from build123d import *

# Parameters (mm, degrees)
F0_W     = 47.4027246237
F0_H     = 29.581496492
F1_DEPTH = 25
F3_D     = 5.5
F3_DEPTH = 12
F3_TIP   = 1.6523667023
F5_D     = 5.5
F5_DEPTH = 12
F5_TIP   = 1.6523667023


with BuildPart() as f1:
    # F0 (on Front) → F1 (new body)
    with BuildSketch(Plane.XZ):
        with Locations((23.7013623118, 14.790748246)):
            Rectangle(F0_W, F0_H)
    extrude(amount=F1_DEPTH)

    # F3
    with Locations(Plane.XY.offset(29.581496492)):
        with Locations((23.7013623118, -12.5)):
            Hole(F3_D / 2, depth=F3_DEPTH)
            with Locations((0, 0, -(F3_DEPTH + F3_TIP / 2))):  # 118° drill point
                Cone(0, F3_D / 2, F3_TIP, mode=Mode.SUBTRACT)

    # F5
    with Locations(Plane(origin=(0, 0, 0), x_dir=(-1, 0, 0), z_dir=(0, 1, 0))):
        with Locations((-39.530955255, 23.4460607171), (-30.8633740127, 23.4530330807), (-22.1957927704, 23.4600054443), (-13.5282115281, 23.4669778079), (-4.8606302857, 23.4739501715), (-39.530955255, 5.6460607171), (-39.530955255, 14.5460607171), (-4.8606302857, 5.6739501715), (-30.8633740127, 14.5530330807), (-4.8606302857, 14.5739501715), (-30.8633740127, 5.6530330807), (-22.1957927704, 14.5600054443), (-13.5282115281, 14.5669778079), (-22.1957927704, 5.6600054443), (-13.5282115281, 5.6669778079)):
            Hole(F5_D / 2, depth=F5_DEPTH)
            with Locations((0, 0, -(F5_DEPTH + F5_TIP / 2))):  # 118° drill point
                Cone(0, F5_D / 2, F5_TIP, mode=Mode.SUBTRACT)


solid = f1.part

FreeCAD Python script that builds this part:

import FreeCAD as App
import Part
import Sketcher


def add_polygon(sketch, points):
    """Adds a closed chain of lines whose ends are joined by coincident constraints."""
    first, n = sketch.GeometryCount, len(points)
    for a, b in zip(points, points[1:] + points[:1]):
        sketch.addGeometry(Part.LineSegment(App.Vector(*a, 0), App.Vector(*b, 0)), False)
    for i in range(n):
        sketch.addConstraint(Sketcher.Constraint("Coincident", first + i, 2, first + (i + 1) % n, 1))

doc = App.newDocument("Part")
body = doc.addObject("PartDesign::Body", "Body")

# Sketch on XZ plane
sketch1 = body.newObject("Sketcher::SketchObject", "Sketch")
sketch1.AttachmentSupport = (doc.getObject("XZ_Plane"), [""])
sketch1.MapMode = "FlatFace"
add_polygon(sketch1, [(0, 30), (0, 0), (47, 0), (47, 30)])  # lines 0-3
sketch1.addConstraint(Sketcher.Constraint("Vertical", 0))
sketch1.addConstraint(Sketcher.Constraint("Horizontal", 1))
sketch1.addConstraint(Sketcher.Constraint("Vertical", 2))
sketch1.addConstraint(Sketcher.Constraint("Horizontal", 3))
sketch1.addConstraint(Sketcher.Constraint("Coincident", 0, 2, -1, 1))
sketch1.addConstraint(Sketcher.Constraint("DistanceX", 1, 1, 1, 2, 47.402725))
sketch1.addConstraint(Sketcher.Constraint("DistanceY", 0, 2, 0, 1, 29.581496))
pad1 = body.newObject("PartDesign::Pad", "Pad")
pad1.Profile = sketch1
pad1.Length = 25

# Sketch on XY plane
sketch2 = body.newObject("Sketcher::SketchObject", "Sketch001")
sketch2.AttachmentSupport = (doc.getObject("XY_Plane"), [""])
sketch2.MapMode = "FlatFace"
sketch2.AttachmentOffset = App.Placement(App.Vector(0, 0, 29.581496), App.Rotation())
sketch2.addGeometry(Part.Circle(App.Vector(23.7, -12.5, 0), App.Vector(0, 0, 1), 2.8), False)
sketch2.addConstraint(Sketcher.Constraint("Diameter", 0, 5.5))
sketch2.addConstraint(Sketcher.Constraint("DistanceY", 0, 3, -1, 1, 12.5))
sketch2.addConstraint(Sketcher.Constraint("DistanceX", -1, 1, 0, 3, 23.701362))
doc.recompute()
hole = body.newObject("PartDesign::Hole", "Hole")
hole.Profile = sketch2
hole.ThreadType = "None"
hole.Diameter = 5.5
hole.DepthType = "Dimension"
hole.Depth = 12
hole.DrillPoint = "Angled"
hole.DrillPointAngle = 118

# Sketch on XZ plane
sketch3 = body.newObject("Sketcher::SketchObject", "Sketch002")
sketch3.AttachmentSupport = (doc.getObject("XZ_Plane"), [""])
sketch3.MapMode = "FlatFace"
sketch3.addGeometry(Part.Circle(App.Vector(39.5, 23.4, 0), App.Vector(0, 0, 1), 2.8), False)
sketch3.addGeometry(Part.Circle(App.Vector(30.9, 23.5, 0), App.Vector(0, 0, 1), 2.8), False)
sketch3.addGeometry(Part.Circle(App.Vector(22.2, 23.5, 0), App.Vector(0, 0, 1), 2.8), False)
sketch3.addGeometry(Part.Circle(App.Vector(13.5, 23.5, 0), App.Vector(0, 0, 1), 2.8), False)
sketch3.addGeometry(Part.Circle(App.Vector(4.9, 23.5, 0), App.Vector(0, 0, 1), 2.8), False)
sketch3.addGeometry(Part.Circle(App.Vector(39.5, 5.6, 0), App.Vector(0, 0, 1), 2.8), False)
sketch3.addGeometry(Part.Circle(App.Vector(39.5, 14.5, 0), App.Vector(0, 0, 1), 2.8), False)
sketch3.addGeometry(Part.Circle(App.Vector(4.9, 5.7, 0), App.Vector(0, 0, 1), 2.8), False)
sketch3.addGeometry(Part.Circle(App.Vector(30.9, 14.6, 0), App.Vector(0, 0, 1), 2.8), False)
sketch3.addGeometry(Part.Circle(App.Vector(4.9, 14.6, 0), App.Vector(0, 0, 1), 2.8), False)
sketch3.addGeometry(Part.Circle(App.Vector(30.9, 5.7, 0), App.Vector(0, 0, 1), 2.8), False)
sketch3.addGeometry(Part.Circle(App.Vector(22.2, 14.6, 0), App.Vector(0, 0, 1), 2.8), False)
sketch3.addGeometry(Part.Circle(App.Vector(13.5, 14.6, 0), App.Vector(0, 0, 1), 2.8), False)
sketch3.addGeometry(Part.Circle(App.Vector(22.2, 5.7, 0), App.Vector(0, 0, 1), 2.8), False)
sketch3.addGeometry(Part.Circle(App.Vector(13.5, 5.7, 0), App.Vector(0, 0, 1), 2.8), False)
sketch3.addConstraint(Sketcher.Constraint("Equal", 0, 1))
sketch3.addConstraint(Sketcher.Constraint("Equal", 1, 2))
sketch3.addConstraint(Sketcher.Constraint("Equal", 2, 3))
sketch3.addConstraint(Sketcher.Constraint("Equal", 3, 4))
sketch3.addConstraint(Sketcher.Constraint("Equal", 4, 5))
sketch3.addConstraint(Sketcher.Constraint("Equal", 5, 6))
sketch3.addConstraint(Sketcher.Constraint("Equal", 6, 7))
sketch3.addConstraint(Sketcher.Constraint("Equal", 7, 8))
sketch3.addConstraint(Sketcher.Constraint("Equal", 8, 9))
sketch3.addConstraint(Sketcher.Constraint("Equal", 9, 10))
sketch3.addConstraint(Sketcher.Constraint("Equal", 10, 11))
sketch3.addConstraint(Sketcher.Constraint("Equal", 11, 12))
sketch3.addConstraint(Sketcher.Constraint("Equal", 12, 13))
sketch3.addConstraint(Sketcher.Constraint("Equal", 13, 14))
sketch3.addConstraint(Sketcher.Constraint("Vertical", 0, 3, 5, 3))
sketch3.addConstraint(Sketcher.Constraint("Vertical", 5, 3, 6, 3))
sketch3.addConstraint(Sketcher.Constraint("Vertical", 4, 3, 7, 3))
sketch3.addConstraint(Sketcher.Constraint("Vertical", 1, 3, 8, 3))
sketch3.addConstraint(Sketcher.Constraint("Vertical", 7, 3, 9, 3))
sketch3.addConstraint(Sketcher.Constraint("Vertical", 8, 3, 10, 3))
sketch3.addConstraint(Sketcher.Constraint("Vertical", 2, 3, 11, 3))
sketch3.addConstraint(Sketcher.Constraint("Vertical", 3, 3, 12, 3))
sketch3.addConstraint(Sketcher.Constraint("Vertical", 11, 3, 13, 3))
sketch3.addConstraint(Sketcher.Constraint("Vertical", 12, 3, 14, 3))
sketch3.addConstraint(Sketcher.Constraint("Diameter", 0, 5.5))
sketch3.addConstraint(Sketcher.Constraint("DistanceY", 5, 3, 0, 3, 17.8))
sketch3.addConstraint(Sketcher.Constraint("DistanceY", 5, 3, 6, 3, 8.9))
sketch3.addConstraint(Sketcher.Constraint("DistanceY", 7, 3, 4, 3, 17.8))
sketch3.addConstraint(Sketcher.Constraint("DistanceY", 8, 3, 1, 3, 8.9))
sketch3.addConstraint(Sketcher.Constraint("DistanceY", 7, 3, 9, 3, 8.9))
sketch3.addConstraint(Sketcher.Constraint("DistanceY", 10, 3, 8, 3, 8.9))
sketch3.addConstraint(Sketcher.Constraint("DistanceY", 11, 3, 2, 3, 8.9))
sketch3.addConstraint(Sketcher.Constraint("DistanceY", 12, 3, 3, 3, 8.9))
sketch3.addConstraint(Sketcher.Constraint("DistanceY", 13, 3, 11, 3, 8.9))
sketch3.addConstraint(Sketcher.Constraint("DistanceY", 14, 3, 12, 3, 8.9))
sketch3.addConstraint(Sketcher.Constraint("DistanceY", -1, 1, 0, 3, 23.446061))
sketch3.addConstraint(Sketcher.Constraint("DistanceX", -1, 1, 3, 3, 13.528212))
sketch3.addConstraint(Sketcher.Constraint("DistanceX", -1, 1, 4, 3, 4.86063))
sketch3.addConstraint(Sketcher.Constraint("DistanceY", -1, 1, 4, 3, 23.47395))
sketch3.addConstraint(Sketcher.Constraint("DistanceX", 1, 3, 0, 3, 8.667581))
sketch3.addConstraint(Sketcher.Constraint("DistanceX", 2, 3, 1, 3, 8.667581))
sketch3.addConstraint(Sketcher.Constraint("DistanceX", 3, 3, 2, 3, 8.667581))
sketch3.addConstraint(Sketcher.Constraint("DistanceY", -1, 1, 1, 3, 23.453033))
sketch3.addConstraint(Sketcher.Constraint("DistanceY", -1, 1, 2, 3, 23.460005))
sketch3.addConstraint(Sketcher.Constraint("DistanceY", -1, 1, 3, 3, 23.466978))
doc.recompute()
hole2 = body.newObject("PartDesign::Hole", "Hole001")
hole2.Profile = sketch3
hole2.ThreadType = "None"
hole2.Diameter = 5.5
hole2.DepthType = "Dimension"
hole2.Depth = 12
hole2.DrillPoint = "Angled"
hole2.DrillPointAngle = 118
hole2.Reversed = True

doc.recompute()
